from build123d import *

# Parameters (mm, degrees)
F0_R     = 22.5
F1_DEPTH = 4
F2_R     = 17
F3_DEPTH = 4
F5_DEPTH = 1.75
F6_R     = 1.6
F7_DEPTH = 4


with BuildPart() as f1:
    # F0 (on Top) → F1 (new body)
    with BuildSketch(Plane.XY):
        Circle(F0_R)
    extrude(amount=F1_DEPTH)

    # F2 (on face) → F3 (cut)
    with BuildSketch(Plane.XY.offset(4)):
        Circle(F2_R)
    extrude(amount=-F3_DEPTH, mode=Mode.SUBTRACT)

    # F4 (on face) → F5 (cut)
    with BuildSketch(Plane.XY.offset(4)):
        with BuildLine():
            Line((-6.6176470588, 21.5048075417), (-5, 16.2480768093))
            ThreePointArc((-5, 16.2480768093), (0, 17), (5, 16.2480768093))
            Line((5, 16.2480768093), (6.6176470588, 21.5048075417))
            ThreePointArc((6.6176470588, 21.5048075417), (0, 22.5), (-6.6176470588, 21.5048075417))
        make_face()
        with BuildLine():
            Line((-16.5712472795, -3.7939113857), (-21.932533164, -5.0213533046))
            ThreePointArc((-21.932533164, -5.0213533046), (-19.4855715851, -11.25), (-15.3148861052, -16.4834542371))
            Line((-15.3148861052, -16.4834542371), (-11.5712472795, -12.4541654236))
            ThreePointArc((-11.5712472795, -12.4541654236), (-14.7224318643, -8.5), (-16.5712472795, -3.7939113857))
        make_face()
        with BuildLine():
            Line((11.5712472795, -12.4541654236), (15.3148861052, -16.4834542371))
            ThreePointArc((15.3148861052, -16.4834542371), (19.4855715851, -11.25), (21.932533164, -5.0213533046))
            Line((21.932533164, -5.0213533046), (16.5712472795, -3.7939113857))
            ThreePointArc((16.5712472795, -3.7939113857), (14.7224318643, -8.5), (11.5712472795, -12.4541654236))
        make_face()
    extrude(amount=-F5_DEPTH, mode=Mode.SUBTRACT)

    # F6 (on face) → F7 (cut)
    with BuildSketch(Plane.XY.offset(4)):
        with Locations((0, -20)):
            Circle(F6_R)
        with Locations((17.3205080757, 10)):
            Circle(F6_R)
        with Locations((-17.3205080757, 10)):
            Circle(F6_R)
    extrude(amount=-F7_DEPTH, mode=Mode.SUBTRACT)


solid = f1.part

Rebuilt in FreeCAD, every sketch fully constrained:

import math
import FreeCAD as App
import Part
import Sketcher

V = App.Vector

doc = App.newDocument("Part")
body = doc.addObject("PartDesign::Body", "Body")

sketch1 = doc.addObject("Sketcher::SketchObject", "Sketch")
body.addObject(sketch1)
sketch1.AttachmentSupport = (doc.XY_Plane, [""])
sketch1.MapMode = "FlatFace"
sketch1.addGeometry(Part.Circle(V(0, 0, 0), V(0, 0, 1), 22), False)
sketch1.addConstraint(Sketcher.Constraint("Coincident", 0, 3, -1, 1))
sketch1.addConstraint(Sketcher.Constraint("Diameter", 0, 45.0))
pad1 = doc.addObject("PartDesign::Pad", "Pad")
body.addObject(pad1)
pad1.Profile = sketch1
pad1.Length = 4

sketch2 = doc.addObject("Sketcher::SketchObject", "Sketch001")
body.addObject(sketch2)
sketch2.AttachmentSupport = (doc.XY_Plane, [""])
sketch2.MapMode = "FlatFace"
sketch2.AttachmentOffset = App.Placement(V(0, 0, 4), App.Rotation())
sketch2.addGeometry(Part.Circle(V(0, 0, 0), V(0, 0, 1), 17), False)
sketch2.addConstraint(Sketcher.Constraint("Coincident", 0, 3, -1, 1))
sketch2.addConstraint(Sketcher.Constraint("Diameter", 0, 34.0))
pocket1 = doc.addObject("PartDesign::Pocket", "Pocket")
body.addObject(pocket1)
pocket1.Profile = sketch2
pocket1.Length = 4

sketch3 = doc.addObject("Sketcher::SketchObject", "Sketch002")
body.addObject(sketch3)
sketch3.AttachmentSupport = (doc.XY_Plane, [""])
sketch3.MapMode = "FlatFace"
sketch3.AttachmentOffset = App.Placement(V(0, 0, 4), App.Rotation())
sketch3.addGeometry(Part.LineSegment(V(-7, 22, 0), V(-5, 16, 0)), False)
sketch3.addGeometry(Part.ArcOfCircle(Part.Circle(V(0, 0, 0), V(0, 0, 1), 17), math.radians(73), math.radians(107)), False)
sketch3.addGeometry(Part.LineSegment(V(5, 16, 0), V(7, 22, 0)), False)
sketch3.addGeometry(Part.ArcOfCircle(Part.Circle(V(0, 0, 0), V(0, 0, 1), 22), math.radians(73), math.radians(107)), False)
sketch3.addGeometry(Part.LineSegment(V(-17, -4, 0), V(-22, -5, 0)), False)
sketch3.addGeometry(Part.ArcOfCircle(Part.Circle(V(0, 0, 0), V(0, 0, 1), 23), math.radians(-167), math.radians(-133)), False)
sketch3.addGeometry(Part.LineSegment(V(-15, -16, 0), V(-12, -12, 0)), False)
sketch3.addGeometry(Part.ArcOfCircle(Part.Circle(V(0, 0, 0), V(0, 0, 1), 17), math.radians(-167), math.radians(-133)), False)
sketch3.addGeometry(Part.LineSegment(V(12, -12, 0), V(15, -16, 0)), False)
sketch3.addGeometry(Part.ArcOfCircle(Part.Circle(V(0, 0, 0), V(0, 0, 1), 23), math.radians(-47), math.radians(-13)), False)
sketch3.addGeometry(Part.LineSegment(V(22, -5, 0), V(17, -4, 0)), False)
sketch3.addGeometry(Part.ArcOfCircle(Part.Circle(V(0, 0, 0), V(0, 0, 1), 17), math.radians(-47), math.radians(-13)), False)
sketch3.addConstraint(Sketcher.Constraint("Coincident", 0, 2, 1, 2))
sketch3.addConstraint(Sketcher.Constraint("Coincident", 1, 1, 2, 1))
sketch3.addConstraint(Sketcher.Constraint("Coincident", 2, 2, 3, 1))
sketch3.addConstraint(Sketcher.Constraint("Coincident", 3, 2, 0, 1))
sketch3.addConstraint(Sketcher.Constraint("Coincident", 4, 2, 5, 1))
sketch3.addConstraint(Sketcher.Constraint("Coincident", 5, 2, 6, 1))
sketch3.addConstraint(Sketcher.Constraint("Coincident", 6, 2, 7, 2))
sketch3.addConstraint(Sketcher.Constraint("Coincident", 7, 1, 4, 1))
sketch3.addConstraint(Sketcher.Constraint("Coincident", 8, 2, 9, 1))
sketch3.addConstraint(Sketcher.Constraint("Coincident", 9, 2, 10, 1))
sketch3.addConstraint(Sketcher.Constraint("Coincident", 10, 2, 11, 2))
sketch3.addConstraint(Sketcher.Constraint("Coincident", 11, 1, 8, 1))
sketch3.addConstraint(Sketcher.Constraint("Coincident", 1, 3, -1, 1))
sketch3.addConstraint(Sketcher.Constraint("Coincident", 3, 3, -1, 1))
sketch3.addConstraint(Sketcher.Constraint("Coincident", 5, 3, -1, 1))
sketch3.addConstraint(Sketcher.Constraint("Coincident", 7, 3, -1, 1))
sketch3.addConstraint(Sketcher.Constraint("Coincident", 9, 3, -1, 1))
sketch3.addConstraint(Sketcher.Constraint("Coincident", 11, 3, -1, 1))
sketch3.addConstraint(Sketcher.Constraint("Equal", 3, 5))
sketch3.addConstraint(Sketcher.Constraint("Equal", 1, 7))
sketch3.addConstraint(Sketcher.Constraint("Equal", 5, 9))
sketch3.addConstraint(Sketcher.Constraint("Equal", 7, 11))
sketch3.addConstraint(Sketcher.Constraint("Horizontal", 0, 2, 1, 1))
sketch3.addConstraint(Sketcher.Constraint("Horizontal", 2, 2, 3, 2))
sketch3.addConstraint(Sketcher.Constraint("Horizontal", 5, 2, 8, 2))
sketch3.addConstraint(Sketcher.Constraint("Horizontal", 4, 2, 9, 2))
sketch3.addConstraint(Sketcher.Constraint("Horizontal", 7, 1, 10, 2))
sketch3.addConstraint(Sketcher.Constraint("Horizontal", 6, 2, 11, 1))
sketch3.addConstraint(Sketcher.Constraint("Radius", 1, 17.0))
sketch3.addConstraint(Sketcher.Constraint("Radius", 3, 22.5))
sketch3.addConstraint(Sketcher.Constraint("DistanceX", 0, 2, -1, 1, 5.0))
sketch3.addConstraint(Sketcher.Constraint("DistanceX", 7, 1, 6, 2, 5.0))
sketch3.addConstraint(Sketcher.Constraint("DistanceY", 5, 2, 4, 2, 11.462101))
sketch3.addConstraint(Sketcher.Constraint("DistanceY", 7, 1, -1, 1, 3.793911))
sketch3.addConstraint(Sketcher.Constraint("DistanceY", 1, 1, 2, 2, 5.256731))
sketch3.addConstraint(Sketcher.Constraint("DistanceX", 5, 2, 6, 2, 3.743639))
pocket2 = doc.addObject("PartDesign::Pocket", "Pocket001")
body.addObject(pocket2)
pocket2.Profile = sketch3
pocket2.Length = 1.75

sketch4 = doc.addObject("Sketcher::SketchObject", "Sketch003")
body.addObject(sketch4)
sketch4.AttachmentSupport = (doc.XY_Plane, [""])
sketch4.MapMode = "FlatFace"
sketch4.AttachmentOffset = App.Placement(V(0, 0, 4), App.Rotation())
sketch4.addGeometry(Part.Circle(V(0, -20, 0), V(0, 0, 1), 1.6), False)
sketch4.addGeometry(Part.Circle(V(17.3, 10, 0), V(0, 0, 1), 1.6), False)
sketch4.addGeometry(Part.Circle(V(-17.3, 10, 0), V(0, 0, 1), 1.6), False)
sketch4.addConstraint(Sketcher.Constraint("Equal", 0, 1))
sketch4.addConstraint(Sketcher.Constraint("Equal", 1, 2))
sketch4.addConstraint(Sketcher.Constraint("Symmetric", 1, 3, 2, 3, -2))
sketch4.addConstraint(Sketcher.Constraint("PointOnObject", 0, 3, -2))
sketch4.addConstraint(Sketcher.Constraint("Diameter", 0, 3.2))
sketch4.addConstraint(Sketcher.Constraint("DistanceY", 0, 3, -1, 1, 20.0))
sketch4.addConstraint(Sketcher.Constraint("DistanceY", -1, 1, 1, 3, 10.0))
sketch4.addConstraint(Sketcher.Constraint("DistanceX", -1, 1, 1, 3, 17.320508))
pocket3 = doc.addObject("PartDesign::Pocket", "Pocket002")
body.addObject(pocket3)
pocket3.Profile = sketch4
pocket3.Length = 4

doc.recompute()
